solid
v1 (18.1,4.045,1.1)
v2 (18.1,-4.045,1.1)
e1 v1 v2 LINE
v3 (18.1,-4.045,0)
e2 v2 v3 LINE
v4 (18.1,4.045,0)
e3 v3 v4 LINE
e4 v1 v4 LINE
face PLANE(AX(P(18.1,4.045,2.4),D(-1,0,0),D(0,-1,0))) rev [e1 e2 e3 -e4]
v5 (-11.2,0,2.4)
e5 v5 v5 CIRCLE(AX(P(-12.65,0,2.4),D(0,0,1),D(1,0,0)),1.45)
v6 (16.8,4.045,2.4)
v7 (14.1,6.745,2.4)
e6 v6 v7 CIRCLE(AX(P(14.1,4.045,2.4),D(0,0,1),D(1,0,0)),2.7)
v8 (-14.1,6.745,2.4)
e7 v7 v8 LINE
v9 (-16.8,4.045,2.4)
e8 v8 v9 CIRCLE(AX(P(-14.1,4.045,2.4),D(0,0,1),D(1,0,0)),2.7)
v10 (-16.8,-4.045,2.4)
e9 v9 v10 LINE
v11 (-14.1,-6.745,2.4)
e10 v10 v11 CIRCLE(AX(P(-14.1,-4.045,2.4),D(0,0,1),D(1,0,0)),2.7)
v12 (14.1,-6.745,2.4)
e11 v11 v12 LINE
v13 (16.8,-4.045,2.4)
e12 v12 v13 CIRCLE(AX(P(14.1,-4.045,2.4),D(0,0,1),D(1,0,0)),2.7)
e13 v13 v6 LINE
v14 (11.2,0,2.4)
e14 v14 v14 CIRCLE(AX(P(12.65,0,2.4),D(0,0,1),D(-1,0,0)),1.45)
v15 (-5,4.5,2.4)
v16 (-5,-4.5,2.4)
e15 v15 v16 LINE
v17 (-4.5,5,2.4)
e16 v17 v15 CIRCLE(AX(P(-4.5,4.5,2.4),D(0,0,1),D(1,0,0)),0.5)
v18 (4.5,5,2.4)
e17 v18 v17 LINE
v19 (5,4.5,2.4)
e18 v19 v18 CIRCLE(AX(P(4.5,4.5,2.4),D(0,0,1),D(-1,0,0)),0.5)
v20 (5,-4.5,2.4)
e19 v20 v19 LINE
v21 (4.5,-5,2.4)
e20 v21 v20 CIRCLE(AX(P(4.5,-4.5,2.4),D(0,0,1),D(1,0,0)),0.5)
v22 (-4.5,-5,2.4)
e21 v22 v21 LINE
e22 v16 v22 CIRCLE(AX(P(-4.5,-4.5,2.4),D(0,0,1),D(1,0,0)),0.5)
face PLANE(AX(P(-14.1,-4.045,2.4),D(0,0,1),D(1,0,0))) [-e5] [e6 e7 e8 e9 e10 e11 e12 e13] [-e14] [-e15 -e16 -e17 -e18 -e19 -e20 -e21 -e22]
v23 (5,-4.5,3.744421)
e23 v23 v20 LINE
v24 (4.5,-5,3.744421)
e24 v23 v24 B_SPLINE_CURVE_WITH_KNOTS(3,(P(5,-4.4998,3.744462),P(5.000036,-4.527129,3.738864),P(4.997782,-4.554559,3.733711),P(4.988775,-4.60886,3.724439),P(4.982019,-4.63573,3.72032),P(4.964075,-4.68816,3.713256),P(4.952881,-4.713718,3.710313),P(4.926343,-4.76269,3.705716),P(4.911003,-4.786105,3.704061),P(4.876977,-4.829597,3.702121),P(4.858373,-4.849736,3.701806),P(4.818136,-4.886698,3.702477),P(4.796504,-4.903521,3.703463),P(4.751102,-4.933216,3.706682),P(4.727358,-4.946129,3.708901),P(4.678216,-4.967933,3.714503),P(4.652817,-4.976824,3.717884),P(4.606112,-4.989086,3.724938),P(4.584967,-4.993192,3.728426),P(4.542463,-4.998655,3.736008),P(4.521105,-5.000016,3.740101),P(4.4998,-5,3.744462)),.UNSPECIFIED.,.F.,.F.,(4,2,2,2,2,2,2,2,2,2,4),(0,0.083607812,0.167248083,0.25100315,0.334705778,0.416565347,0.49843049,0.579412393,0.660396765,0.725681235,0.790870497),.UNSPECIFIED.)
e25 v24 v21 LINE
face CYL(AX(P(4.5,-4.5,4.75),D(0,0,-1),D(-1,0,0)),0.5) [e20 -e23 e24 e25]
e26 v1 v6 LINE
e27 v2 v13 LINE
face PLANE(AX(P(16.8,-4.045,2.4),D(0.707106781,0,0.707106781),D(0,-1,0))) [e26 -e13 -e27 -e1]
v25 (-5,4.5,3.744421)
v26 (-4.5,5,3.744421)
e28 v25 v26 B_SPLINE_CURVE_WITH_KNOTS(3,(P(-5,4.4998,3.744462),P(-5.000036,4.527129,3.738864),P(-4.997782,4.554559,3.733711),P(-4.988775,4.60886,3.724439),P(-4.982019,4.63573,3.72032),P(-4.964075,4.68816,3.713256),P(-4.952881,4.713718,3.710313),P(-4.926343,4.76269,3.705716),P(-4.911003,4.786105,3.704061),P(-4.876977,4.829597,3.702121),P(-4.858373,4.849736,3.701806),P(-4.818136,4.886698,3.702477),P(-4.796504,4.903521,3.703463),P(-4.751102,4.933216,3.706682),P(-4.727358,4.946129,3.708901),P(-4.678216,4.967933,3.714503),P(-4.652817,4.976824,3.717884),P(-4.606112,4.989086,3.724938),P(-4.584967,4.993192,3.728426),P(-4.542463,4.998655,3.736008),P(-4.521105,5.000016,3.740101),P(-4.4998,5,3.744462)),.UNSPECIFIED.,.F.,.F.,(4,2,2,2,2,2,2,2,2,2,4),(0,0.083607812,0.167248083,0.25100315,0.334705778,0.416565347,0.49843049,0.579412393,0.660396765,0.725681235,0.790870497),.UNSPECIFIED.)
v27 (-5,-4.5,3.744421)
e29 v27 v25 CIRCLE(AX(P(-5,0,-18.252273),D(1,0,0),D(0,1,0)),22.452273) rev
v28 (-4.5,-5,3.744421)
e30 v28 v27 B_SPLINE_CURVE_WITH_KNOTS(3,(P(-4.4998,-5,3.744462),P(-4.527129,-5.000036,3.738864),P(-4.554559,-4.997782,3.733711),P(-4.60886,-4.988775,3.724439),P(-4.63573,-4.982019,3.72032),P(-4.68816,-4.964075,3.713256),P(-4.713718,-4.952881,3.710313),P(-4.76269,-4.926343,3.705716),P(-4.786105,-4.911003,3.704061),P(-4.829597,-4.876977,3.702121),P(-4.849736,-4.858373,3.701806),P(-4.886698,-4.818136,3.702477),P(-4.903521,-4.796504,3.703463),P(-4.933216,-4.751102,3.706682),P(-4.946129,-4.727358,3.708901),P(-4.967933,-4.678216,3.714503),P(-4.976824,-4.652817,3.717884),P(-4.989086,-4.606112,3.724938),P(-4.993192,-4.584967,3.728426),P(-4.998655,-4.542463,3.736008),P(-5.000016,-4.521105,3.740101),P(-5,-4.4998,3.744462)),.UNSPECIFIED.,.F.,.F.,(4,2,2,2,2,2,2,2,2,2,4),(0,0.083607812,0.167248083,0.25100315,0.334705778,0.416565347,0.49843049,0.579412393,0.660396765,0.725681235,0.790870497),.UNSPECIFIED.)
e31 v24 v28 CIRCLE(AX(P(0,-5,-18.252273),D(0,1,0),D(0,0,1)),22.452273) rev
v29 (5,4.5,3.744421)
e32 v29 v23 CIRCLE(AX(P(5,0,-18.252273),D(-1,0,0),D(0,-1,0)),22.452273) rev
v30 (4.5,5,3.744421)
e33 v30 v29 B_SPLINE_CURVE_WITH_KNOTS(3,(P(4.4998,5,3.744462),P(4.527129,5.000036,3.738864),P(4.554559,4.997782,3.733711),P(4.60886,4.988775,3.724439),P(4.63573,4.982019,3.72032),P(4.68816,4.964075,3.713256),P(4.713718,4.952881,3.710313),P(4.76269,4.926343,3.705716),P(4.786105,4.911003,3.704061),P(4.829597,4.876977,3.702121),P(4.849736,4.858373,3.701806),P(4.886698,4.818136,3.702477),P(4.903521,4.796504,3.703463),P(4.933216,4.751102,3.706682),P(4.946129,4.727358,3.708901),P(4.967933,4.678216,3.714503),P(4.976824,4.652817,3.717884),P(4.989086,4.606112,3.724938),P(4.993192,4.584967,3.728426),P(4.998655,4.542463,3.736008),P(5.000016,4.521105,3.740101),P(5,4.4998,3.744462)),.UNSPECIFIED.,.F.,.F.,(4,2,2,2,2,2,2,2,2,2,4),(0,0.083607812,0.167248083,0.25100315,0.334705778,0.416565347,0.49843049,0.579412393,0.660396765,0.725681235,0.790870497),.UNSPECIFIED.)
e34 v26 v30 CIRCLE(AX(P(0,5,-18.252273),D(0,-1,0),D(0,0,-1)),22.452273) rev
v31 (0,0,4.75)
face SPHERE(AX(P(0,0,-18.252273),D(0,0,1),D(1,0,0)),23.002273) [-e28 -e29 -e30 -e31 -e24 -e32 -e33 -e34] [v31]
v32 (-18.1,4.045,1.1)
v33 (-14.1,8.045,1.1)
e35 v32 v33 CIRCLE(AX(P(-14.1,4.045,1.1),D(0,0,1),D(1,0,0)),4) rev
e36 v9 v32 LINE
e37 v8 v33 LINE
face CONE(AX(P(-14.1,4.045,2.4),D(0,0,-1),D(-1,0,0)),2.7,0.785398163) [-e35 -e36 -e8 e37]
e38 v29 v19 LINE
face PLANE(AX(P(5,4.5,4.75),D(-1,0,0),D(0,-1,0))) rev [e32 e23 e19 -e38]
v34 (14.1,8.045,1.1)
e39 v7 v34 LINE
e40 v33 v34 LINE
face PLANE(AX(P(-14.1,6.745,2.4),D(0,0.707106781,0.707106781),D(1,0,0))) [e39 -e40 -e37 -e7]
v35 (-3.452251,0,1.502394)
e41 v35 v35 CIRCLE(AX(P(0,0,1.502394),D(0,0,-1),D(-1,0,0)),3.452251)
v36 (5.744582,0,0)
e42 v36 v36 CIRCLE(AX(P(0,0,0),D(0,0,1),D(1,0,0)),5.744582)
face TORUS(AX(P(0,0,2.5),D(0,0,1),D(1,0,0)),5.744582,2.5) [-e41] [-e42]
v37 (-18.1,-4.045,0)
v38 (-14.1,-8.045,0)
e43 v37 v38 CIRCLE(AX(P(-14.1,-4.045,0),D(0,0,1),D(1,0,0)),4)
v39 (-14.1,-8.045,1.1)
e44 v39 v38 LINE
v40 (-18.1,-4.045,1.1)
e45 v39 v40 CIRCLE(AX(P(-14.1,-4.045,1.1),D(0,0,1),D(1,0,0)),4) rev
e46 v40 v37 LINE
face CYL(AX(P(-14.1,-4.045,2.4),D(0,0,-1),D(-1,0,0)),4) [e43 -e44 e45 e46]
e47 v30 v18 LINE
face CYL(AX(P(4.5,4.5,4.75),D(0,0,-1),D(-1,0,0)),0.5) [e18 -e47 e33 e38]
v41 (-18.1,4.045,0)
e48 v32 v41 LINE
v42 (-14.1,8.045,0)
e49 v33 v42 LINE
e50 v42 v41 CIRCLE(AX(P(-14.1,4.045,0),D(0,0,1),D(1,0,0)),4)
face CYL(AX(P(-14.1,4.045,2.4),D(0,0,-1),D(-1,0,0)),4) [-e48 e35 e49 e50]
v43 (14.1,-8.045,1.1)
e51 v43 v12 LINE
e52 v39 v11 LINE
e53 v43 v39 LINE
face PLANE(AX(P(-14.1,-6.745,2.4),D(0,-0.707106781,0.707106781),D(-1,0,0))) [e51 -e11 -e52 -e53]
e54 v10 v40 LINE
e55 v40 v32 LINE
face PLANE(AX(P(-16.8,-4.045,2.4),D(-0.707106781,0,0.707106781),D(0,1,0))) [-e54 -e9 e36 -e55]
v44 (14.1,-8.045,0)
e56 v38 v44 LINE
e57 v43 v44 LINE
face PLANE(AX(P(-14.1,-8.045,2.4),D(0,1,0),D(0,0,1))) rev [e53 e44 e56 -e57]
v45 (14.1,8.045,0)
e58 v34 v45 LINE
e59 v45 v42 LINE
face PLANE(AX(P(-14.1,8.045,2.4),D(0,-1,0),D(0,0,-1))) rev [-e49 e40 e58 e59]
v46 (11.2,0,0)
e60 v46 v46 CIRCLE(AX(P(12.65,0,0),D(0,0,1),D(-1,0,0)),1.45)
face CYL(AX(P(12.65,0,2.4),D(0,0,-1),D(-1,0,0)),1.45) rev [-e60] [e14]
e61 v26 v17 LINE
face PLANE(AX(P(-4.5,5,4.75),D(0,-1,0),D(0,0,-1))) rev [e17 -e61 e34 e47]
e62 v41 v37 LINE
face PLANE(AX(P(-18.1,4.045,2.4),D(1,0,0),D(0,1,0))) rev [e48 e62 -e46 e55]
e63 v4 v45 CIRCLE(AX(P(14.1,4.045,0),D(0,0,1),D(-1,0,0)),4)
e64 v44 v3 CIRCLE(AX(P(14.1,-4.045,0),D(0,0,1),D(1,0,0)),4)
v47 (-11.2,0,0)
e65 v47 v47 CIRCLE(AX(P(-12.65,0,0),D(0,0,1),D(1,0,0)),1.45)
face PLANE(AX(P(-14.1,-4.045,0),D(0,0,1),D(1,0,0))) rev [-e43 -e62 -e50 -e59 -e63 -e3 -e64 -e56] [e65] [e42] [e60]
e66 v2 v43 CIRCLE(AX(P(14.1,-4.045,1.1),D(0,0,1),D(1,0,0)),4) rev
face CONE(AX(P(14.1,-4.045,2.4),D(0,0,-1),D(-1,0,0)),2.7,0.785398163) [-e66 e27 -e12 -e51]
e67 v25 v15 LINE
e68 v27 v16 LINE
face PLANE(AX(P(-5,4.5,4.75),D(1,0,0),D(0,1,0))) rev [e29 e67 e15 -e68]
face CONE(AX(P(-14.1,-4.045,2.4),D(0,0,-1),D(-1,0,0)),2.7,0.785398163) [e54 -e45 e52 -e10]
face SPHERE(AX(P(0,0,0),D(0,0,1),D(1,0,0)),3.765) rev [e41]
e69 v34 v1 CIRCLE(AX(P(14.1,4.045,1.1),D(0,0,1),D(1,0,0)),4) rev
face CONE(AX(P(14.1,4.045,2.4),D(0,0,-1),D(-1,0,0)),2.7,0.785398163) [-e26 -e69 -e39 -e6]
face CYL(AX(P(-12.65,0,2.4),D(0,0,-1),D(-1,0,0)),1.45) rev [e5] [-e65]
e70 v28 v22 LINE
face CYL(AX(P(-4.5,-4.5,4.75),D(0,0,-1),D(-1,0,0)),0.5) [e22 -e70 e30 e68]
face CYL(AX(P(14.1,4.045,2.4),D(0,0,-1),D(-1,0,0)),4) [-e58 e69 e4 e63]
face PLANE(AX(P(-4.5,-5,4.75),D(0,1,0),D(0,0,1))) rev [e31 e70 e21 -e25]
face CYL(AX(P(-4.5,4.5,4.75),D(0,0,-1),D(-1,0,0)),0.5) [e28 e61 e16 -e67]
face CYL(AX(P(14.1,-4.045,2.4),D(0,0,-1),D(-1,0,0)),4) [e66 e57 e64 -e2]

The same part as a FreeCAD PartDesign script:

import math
import FreeCAD as App
import Part
import Sketcher

V = App.Vector


def edges_at(feature, points):
    """Names of the edges that pass closest to the given points."""
    edges = feature.Shape.Edges
    near = lambda p: min(range(len(edges)), key=lambda i: edges[i].distToShape(Part.Vertex(*p))[0])
    return sorted({f"Edge{near(p) + 1}" for p in points})

doc = App.newDocument("Part")
body = doc.addObject("PartDesign::Body", "Body")

sketch1 = body.newObject("Sketcher::SketchObject", "Sketch")
sketch1.AttachmentSupport = (doc.getObject("XY_Plane"), [""])
sketch1.MapMode = "FlatFace"
sketch1.addGeometry([
    Part.LineSegment(V(14.1, 8.045, 0), V(-14.1, 8.045, 0)),
    Part.ArcOfCircle(Part.Circle(V(-14.1, 4.045, 0), V(0, 0, 1), 4), math.radians(90), math.radians(180)),
    Part.LineSegment(V(-18.1, 4.045, 0), V(-18.1, -4.045, 0)),
    Part.ArcOfCircle(Part.Circle(V(-14.1, -4.045, 0), V(0, 0, 1), 4), math.radians(180), math.radians(270)),
    Part.LineSegment(V(-14.1, -8.045, 0), V(14.1, -8.045, 0)),
    Part.ArcOfCircle(Part.Circle(V(14.1, -4.045, 0), V(0, 0, 1), 4), math.radians(-90), math.radians(0)),
    Part.LineSegment(V(18.1, -4.045, 0), V(18.1, 4.045, 0)),
    Part.ArcOfCircle(Part.Circle(V(14.1, 4.045, 0), V(0, 0, 1), 4), math.radians(0), math.radians(90)),
    Part.Circle(V(12.65, 0, 0), V(0, 0, 1), 1.45),
    Part.Circle(V(-12.65, 0, 0), V(0, 0, 1), 1.45),
], False)
sketch1.addConstraint([
    Sketcher.Constraint("Tangent", 0, 2, 1, 1),
    Sketcher.Constraint("Tangent", 1, 2, 2, 1),
    Sketcher.Constraint("Tangent", 2, 2, 3, 1),
    Sketcher.Constraint("Tangent", 3, 2, 4, 1),
    Sketcher.Constraint("Tangent", 4, 2, 5, 1),
    Sketcher.Constraint("Tangent", 5, 2, 6, 1),
    Sketcher.Constraint("Tangent", 6, 2, 7, 1),
    Sketcher.Constraint("Tangent", 7, 2, 0, 1),
    Sketcher.Constraint("Horizontal", 0),
    Sketcher.Constraint("Vertical", 2),
    Sketcher.Constraint("Horizontal", 4),
    Sketcher.Constraint("Vertical", 6),
    Sketcher.Constraint("Equal", 1, 3),
    Sketcher.Constraint("Equal", 3, 5),
    Sketcher.Constraint("Equal", 5, 7),
    Sketcher.Constraint("Equal", 8, 9),
    Sketcher.Constraint("Symmetric", 1, 3, 5, 3, -1, 1),
    Sketcher.Constraint("Symmetric", 8, 3, 9, 3, -1, 1),
    Sketcher.Constraint("PointOnObject", 8, 3, -1),
    Sketcher.Constraint("Radius", 1, 4.0),
    Sketcher.Constraint("Diameter", 8, 2.9),
    Sketcher.Constraint("DistanceX", 0, 2, 0, 1, 28.2),
    Sketcher.Constraint("DistanceY", 2, 2, 2, 1, 8.09),
    Sketcher.Constraint("DistanceX", 9, 3, 8, 3, 25.3),
])
pad1 = body.newObject("PartDesign::Pad", "Pad")
pad1.Profile = sketch1
pad1.Length = 2.4

sketch2 = body.newObject("Sketcher::SketchObject", "Sketch001")
sketch2.AttachmentSupport = (doc.getObject("XY_Plane"), [""])
sketch2.MapMode = "FlatFace"
sketch2.AttachmentOffset = App.Placement(V(0, 0, 2.4), App.Rotation())
sketch2.addGeometry([
    Part.LineSegment(V(4.5, 5, 0), V(-4.5, 5, 0)),
    Part.ArcOfCircle(Part.Circle(V(-4.5, 4.5, 0), V(0, 0, 1), 0.5), math.radians(90), math.radians(180)),
    Part.LineSegment(V(-5, 4.5, 0), V(-5, -4.5, 0)),
    Part.ArcOfCircle(Part.Circle(V(-4.5, -4.5, 0), V(0, 0, 1), 0.5), math.radians(180), math.radians(270)),
    Part.LineSegment(V(-4.5, -5, 0), V(4.5, -5, 0)),
    Part.ArcOfCircle(Part.Circle(V(4.5, -4.5, 0), V(0, 0, 1), 0.5), math.radians(-90), math.radians(0)),
    Part.LineSegment(V(5, -4.5, 0), V(5, 4.5, 0)),
    Part.ArcOfCircle(Part.Circle(V(4.5, 4.5, 0), V(0, 0, 1), 0.5), math.radians(0), math.radians(90)),
], False)
sketch2.addConstraint([
    Sketcher.Constraint("Tangent", 0, 2, 1, 1),
    Sketcher.Constraint("Tangent", 1, 2, 2, 1),
    Sketcher.Constraint("Tangent", 2, 2, 3, 1),
    Sketcher.Constraint("Tangent", 3, 2, 4, 1),
    Sketcher.Constraint("Tangent", 4, 2, 5, 1),
    Sketcher.Constraint("Tangent", 5, 2, 6, 1),
    Sketcher.Constraint("Tangent", 6, 2, 7, 1),
    Sketcher.Constraint("Tangent", 7, 2, 0, 1),
    Sketcher.Constraint("Horizontal", 0),
    Sketcher.Constraint("Vertical", 2),
    Sketcher.Constraint("Horizontal", 4),
    Sketcher.Constraint("Vertical", 6),
    Sketcher.Constraint("Equal", 1, 3),
    Sketcher.Constraint("Equal", 3, 5),
    Sketcher.Constraint("Equal", 5, 7),
    Sketcher.Constraint("Symmetric", 1, 3, 5, 3, -1, 1),
    Sketcher.Constraint("Equal", 4, 2),
    Sketcher.Constraint("Radius", 1, 0.5),
    Sketcher.Constraint("DistanceX", 0, 2, 0, 1, 9.0),
])
pad2 = body.newObject("PartDesign::Pad", "Pad001")
pad2.Profile = sketch2
pad2.Length = 2.35

sketch3 = body.newObject("Sketcher::SketchObject", "Sketch002")
sketch3.AttachmentSupport = (doc.getObject("XZ_Plane"), [""])
sketch3.MapMode = "FlatFace"
sketch3.addGeometry([
    Part.LineSegment(V(0, 8.133061, 0), V(11.181129, 8.714892, 0)),
    Part.LineSegment(V(11.181129, 8.714892, 0), V(7.979796, 3.321494, 0)),
    Part.ArcOfCircle(Part.Circle(V(0, -18.252273, 0), V(0, 0, 1), 23.002273), math.radians(69.701362), math.radians(90)),
    Part.LineSegment(V(0, 4.75, 0), V(0, 8.133061, 0)),
    Part.LineSegment(V(3.765, 0, 0), V(5.976478, -3.084693, 0)),
    Part.LineSegment(V(5.976478, -3.084693, 0), V(3.765, -3.765, 0)),
    Part.LineSegment(V(3.765, -3.765, 0), V(0, -3.765, 0)),
    Part.LineSegment(V(0, -3.765, 0), V(0, 3.765, 0)),
    Part.ArcOfCircle(Part.Circle(V(0, 0, 0), V(0, 0, 1), 3.765), math.radians(0), math.radians(90)),
], False)
sketch3.addConstraint([
    Sketcher.Constraint("Coincident", 0, 2, 1, 1),
    Sketcher.Constraint("Coincident", 1, 2, 2, 1),
    Sketcher.Constraint("Coincident", 2, 2, 3, 1),
    Sketcher.Constraint("Coincident", 3, 2, 0, 1),
    Sketcher.Constraint("Coincident", 4, 2, 5, 1),
    Sketcher.Constraint("Coincident", 5, 2, 6, 1),
    Sketcher.Constraint("Coincident", 6, 2, 7, 1),
    Sketcher.Constraint("Coincident", 7, 2, 8, 2),
    Sketcher.Constraint("Coincident", 8, 1, 4, 1),
    Sketcher.Constraint("Vertical", 3),
    Sketcher.Constraint("Horizontal", 6),
    Sketcher.Constraint("Vertical", 7),
    Sketcher.Constraint("Coincident", 8, 3, -1, 1),
    Sketcher.Constraint("Symmetric", 6, 2, 7, 2, -1, 1),
    Sketcher.Constraint("PointOnObject", 2, 3, -2),
    Sketcher.Constraint("PointOnObject", 2, 2, -2),
    Sketcher.Constraint("PointOnObject", 8, 1, -1),
    Sketcher.Constraint("Vertical", 5, 2, 8, 1),
    Sketcher.Constraint("Radius", 8, 3.765),
    Sketcher.Constraint("DistanceY", -1, 1, 2, 2, 4.75),
    Sketcher.Constraint("Radius", 2, 23.002273),
    Sketcher.Constraint("DistanceY", 3, 1, 3, 2, 3.383061),
    Sketcher.Constraint("DistanceY", 1, 2, 0, 2, 5.393398),
    Sketcher.Constraint("Distance", 4, 3.79552),
    Sketcher.Constraint("DistanceX", -1, 1, 0, 2, 11.181129),
    Sketcher.Constraint("DistanceX", -1, 1, 4, 2, 5.976478),
    Sketcher.Constraint("DistanceY", 3, 2, 0, 2, 0.581832),
])
groove = body.newObject("PartDesign::Groove", "Groove")
groove.Profile = sketch3
groove.ReferenceAxis = (sketch3, ["V_Axis"])
groove.Angle = 360
doc.recompute()

chamfer = body.newObject("PartDesign::Chamfer", "Chamfer")
chamfer.Base = (groove, edges_at(groove, [
    (16.928, -6.873, 2.4),
    (18.1, 0, 2.4),
    (16.928, 6.873, 2.4),
    (0, 8.045, 2.4),
    (-16.928, 6.873, 2.4),
    (-18.1, 0, 2.4),
    (-16.928, -6.873, 2.4),
    (0, -8.045, 2.4),
]))
chamfer.Size = 1.3
doc.recompute()

fillet = body.newObject("PartDesign::Fillet", "Fillet")
fillet.Base = (chamfer, edges_at(chamfer, [(-3.765, 0, 0)]))
fillet.Radius = 2.5

doc.recompute()
